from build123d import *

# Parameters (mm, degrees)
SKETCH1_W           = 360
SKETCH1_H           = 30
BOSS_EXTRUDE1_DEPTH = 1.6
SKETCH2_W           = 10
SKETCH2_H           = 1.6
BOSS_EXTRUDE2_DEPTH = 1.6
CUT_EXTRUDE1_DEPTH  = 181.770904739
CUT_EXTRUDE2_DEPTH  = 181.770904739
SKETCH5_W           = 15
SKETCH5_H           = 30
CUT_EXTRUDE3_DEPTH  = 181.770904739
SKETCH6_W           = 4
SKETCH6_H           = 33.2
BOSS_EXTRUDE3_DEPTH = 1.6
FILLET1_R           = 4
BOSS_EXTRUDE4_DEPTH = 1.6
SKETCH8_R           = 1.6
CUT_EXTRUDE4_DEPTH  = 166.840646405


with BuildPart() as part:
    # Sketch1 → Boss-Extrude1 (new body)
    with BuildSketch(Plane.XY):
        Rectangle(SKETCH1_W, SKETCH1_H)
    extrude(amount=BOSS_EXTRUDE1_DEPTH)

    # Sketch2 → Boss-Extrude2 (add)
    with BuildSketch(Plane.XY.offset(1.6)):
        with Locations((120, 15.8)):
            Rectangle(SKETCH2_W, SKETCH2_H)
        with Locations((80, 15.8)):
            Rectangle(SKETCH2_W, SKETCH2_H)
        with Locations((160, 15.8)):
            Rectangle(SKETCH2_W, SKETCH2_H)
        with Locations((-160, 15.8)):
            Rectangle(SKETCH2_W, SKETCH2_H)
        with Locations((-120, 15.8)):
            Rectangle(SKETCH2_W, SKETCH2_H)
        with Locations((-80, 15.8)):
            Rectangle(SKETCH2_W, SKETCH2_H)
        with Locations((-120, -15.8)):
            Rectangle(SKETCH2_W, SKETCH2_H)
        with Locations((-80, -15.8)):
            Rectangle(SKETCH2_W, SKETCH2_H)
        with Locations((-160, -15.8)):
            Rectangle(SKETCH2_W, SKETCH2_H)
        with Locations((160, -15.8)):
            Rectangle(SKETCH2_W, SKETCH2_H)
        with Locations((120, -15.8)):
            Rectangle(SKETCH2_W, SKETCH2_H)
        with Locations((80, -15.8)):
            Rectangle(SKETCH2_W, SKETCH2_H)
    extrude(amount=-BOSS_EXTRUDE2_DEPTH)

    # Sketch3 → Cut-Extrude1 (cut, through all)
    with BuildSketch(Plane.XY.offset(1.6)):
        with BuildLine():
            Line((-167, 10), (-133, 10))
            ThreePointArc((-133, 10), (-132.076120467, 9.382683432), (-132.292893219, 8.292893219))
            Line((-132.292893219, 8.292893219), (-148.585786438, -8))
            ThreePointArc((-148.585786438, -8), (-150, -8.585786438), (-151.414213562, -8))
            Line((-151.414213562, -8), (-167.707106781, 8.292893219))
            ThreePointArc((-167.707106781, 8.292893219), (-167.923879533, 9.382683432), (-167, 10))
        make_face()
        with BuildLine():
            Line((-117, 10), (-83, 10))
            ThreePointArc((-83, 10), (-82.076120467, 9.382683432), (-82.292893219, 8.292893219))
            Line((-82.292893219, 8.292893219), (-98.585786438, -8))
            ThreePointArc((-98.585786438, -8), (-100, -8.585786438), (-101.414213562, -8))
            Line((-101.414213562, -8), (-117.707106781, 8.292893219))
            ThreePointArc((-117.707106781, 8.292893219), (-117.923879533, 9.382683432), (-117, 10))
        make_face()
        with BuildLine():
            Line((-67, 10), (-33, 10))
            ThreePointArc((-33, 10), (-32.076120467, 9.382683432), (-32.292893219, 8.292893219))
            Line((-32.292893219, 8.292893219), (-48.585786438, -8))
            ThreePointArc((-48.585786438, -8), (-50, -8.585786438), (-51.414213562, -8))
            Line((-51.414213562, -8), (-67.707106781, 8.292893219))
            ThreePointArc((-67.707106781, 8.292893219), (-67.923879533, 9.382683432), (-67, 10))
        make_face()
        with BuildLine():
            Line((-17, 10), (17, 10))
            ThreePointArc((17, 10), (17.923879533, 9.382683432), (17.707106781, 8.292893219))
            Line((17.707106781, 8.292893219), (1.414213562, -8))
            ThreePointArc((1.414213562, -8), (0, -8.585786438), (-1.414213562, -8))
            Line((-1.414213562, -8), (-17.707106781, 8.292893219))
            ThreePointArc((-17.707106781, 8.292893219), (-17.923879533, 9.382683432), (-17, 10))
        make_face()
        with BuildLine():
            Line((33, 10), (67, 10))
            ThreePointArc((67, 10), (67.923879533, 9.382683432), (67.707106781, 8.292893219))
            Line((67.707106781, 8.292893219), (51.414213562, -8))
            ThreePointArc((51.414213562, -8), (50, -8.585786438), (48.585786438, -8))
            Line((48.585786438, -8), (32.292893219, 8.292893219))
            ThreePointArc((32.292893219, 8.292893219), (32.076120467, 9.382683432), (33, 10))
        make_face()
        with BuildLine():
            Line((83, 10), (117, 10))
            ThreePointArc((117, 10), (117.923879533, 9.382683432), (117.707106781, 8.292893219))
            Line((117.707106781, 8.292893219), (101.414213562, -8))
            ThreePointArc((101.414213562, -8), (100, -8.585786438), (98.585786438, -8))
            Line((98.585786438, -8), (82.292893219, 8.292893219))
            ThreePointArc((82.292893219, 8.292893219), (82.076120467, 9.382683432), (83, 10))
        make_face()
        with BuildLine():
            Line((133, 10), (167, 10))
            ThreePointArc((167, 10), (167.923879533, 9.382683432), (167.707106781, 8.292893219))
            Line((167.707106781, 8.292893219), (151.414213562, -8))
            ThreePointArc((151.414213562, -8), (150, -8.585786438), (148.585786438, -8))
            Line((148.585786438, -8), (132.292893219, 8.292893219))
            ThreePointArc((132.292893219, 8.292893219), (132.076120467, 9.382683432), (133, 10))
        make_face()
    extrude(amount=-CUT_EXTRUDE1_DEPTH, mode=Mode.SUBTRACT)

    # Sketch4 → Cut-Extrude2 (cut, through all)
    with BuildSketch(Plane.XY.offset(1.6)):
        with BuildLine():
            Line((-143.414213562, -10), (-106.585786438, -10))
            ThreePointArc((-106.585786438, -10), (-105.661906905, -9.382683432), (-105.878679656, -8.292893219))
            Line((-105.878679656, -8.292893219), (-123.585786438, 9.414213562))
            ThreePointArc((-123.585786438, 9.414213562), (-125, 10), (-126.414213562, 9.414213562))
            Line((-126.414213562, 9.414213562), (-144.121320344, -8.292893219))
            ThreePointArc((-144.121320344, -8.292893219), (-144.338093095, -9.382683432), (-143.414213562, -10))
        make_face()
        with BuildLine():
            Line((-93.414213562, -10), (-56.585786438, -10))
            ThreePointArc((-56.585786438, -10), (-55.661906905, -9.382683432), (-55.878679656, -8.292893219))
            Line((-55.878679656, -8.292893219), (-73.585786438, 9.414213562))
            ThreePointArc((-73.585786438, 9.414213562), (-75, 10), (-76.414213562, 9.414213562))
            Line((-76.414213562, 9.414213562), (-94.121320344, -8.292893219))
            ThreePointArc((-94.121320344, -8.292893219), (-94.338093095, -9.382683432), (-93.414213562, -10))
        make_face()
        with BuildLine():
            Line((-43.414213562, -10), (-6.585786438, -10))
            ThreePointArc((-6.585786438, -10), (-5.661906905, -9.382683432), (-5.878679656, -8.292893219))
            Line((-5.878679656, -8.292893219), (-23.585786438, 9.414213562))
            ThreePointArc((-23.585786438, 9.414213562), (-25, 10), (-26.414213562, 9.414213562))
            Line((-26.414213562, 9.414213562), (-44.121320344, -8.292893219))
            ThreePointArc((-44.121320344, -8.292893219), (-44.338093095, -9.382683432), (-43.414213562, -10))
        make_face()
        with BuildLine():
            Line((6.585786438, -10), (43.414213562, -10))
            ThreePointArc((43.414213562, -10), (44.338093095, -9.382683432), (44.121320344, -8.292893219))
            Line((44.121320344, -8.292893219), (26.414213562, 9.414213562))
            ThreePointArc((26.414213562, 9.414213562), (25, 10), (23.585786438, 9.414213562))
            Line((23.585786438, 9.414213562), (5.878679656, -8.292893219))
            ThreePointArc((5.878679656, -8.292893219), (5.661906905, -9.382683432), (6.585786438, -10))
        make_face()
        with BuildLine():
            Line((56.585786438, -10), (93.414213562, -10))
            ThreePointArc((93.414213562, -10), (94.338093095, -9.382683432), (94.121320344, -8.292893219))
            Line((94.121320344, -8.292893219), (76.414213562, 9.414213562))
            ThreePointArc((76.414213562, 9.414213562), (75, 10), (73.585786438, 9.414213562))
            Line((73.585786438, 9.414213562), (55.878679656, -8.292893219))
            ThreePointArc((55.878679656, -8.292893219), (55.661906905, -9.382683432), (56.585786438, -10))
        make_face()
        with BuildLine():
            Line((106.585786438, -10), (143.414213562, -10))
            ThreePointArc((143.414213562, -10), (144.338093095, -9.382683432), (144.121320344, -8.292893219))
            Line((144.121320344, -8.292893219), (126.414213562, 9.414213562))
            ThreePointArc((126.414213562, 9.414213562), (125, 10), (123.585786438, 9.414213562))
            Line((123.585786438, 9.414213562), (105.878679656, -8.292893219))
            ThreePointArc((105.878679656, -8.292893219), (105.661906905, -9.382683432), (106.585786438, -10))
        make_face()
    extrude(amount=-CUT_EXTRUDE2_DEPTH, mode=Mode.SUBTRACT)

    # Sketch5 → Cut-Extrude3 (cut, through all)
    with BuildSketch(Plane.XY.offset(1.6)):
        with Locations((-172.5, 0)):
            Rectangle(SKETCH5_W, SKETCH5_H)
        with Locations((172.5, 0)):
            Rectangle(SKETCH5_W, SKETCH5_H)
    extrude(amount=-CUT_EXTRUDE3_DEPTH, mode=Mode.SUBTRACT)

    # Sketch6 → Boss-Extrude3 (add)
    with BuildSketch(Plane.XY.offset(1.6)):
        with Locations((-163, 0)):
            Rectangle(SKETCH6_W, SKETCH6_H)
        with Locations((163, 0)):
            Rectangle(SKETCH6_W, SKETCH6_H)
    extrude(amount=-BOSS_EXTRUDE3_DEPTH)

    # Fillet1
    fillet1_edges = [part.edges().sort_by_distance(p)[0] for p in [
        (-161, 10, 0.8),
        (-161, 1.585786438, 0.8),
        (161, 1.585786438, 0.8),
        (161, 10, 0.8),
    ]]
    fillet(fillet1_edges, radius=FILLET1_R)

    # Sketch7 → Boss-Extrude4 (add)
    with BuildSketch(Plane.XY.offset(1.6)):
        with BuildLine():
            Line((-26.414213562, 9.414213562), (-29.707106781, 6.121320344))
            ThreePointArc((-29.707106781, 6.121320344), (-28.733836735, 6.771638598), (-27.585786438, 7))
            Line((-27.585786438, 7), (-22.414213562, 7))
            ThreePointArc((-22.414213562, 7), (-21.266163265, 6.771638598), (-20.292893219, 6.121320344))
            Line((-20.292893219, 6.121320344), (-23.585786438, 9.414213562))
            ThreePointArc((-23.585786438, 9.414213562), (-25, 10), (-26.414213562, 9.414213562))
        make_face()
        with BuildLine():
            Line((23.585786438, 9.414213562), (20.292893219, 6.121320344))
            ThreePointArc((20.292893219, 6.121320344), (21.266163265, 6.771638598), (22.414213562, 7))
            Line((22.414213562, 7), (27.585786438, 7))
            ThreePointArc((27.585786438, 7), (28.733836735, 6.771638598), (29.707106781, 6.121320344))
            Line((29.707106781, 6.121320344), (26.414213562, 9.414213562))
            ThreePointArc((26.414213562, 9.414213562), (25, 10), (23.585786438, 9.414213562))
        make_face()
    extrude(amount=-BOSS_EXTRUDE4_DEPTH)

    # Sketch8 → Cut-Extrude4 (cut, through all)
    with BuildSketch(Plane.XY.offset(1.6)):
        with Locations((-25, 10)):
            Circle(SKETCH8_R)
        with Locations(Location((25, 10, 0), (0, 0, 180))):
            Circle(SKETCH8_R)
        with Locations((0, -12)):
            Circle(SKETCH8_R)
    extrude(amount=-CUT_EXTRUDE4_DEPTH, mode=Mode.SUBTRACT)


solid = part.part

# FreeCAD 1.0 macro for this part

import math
import FreeCAD as App
import Part
import Sketcher
Q = App.Units.Quantity


def edges_at(feature, points):
    """Names of the edges that pass closest to the given points."""
    edges = feature.Shape.Edges
    near = lambda p: min(range(len(edges)), key=lambda i: edges[i].distToShape(Part.Vertex(*p))[0])
    return sorted({f"Edge{near(p) + 1}" for p in points})

doc = App.newDocument("Part")
body = doc.addObject("PartDesign::Body", "Body")

# Sketch on XY plane
sketch1 = doc.addObject("Sketcher::SketchObject", "Sketch")
body.addObject(sketch1)
sketch1.AttachmentSupport = (doc.XY_Plane, [""])
sketch1.MapMode = "FlatFace"
sketch1.addGeometry([
    Part.LineSegment(App.Vector(-180, 15, 0), App.Vector(-180, -15, 0)),
    Part.LineSegment(App.Vector(-180, -15, 0), App.Vector(180, -15, 0)),
    Part.LineSegment(App.Vector(180, -15, 0), App.Vector(180, 15, 0)),
    Part.LineSegment(App.Vector(180, 15, 0), App.Vector(-180, 15, 0)),
], False)
sketch1.addConstraint([
    Sketcher.Constraint("Coincident", 0, 2, 1, 1),
    Sketcher.Constraint("Coincident", 1, 2, 2, 1),
    Sketcher.Constraint("Coincident", 2, 2, 3, 1),
    Sketcher.Constraint("Coincident", 3, 2, 0, 1),
    Sketcher.Constraint("Vertical", 0),
    Sketcher.Constraint("Horizontal", 1),
    Sketcher.Constraint("Vertical", 2),
    Sketcher.Constraint("Horizontal", 3),
    Sketcher.Constraint("Symmetric", 0, 2, 2, 2, -1, 1),
    Sketcher.Constraint("DistanceX", 1, 1, 1, 2, Q("360 mm")),
    Sketcher.Constraint("DistanceY", 0, 2, 0, 1, Q("30 mm")),
])
pad1 = doc.addObject("PartDesign::Pad", "Pad")
body.addObject(pad1)
pad1.Profile = sketch1
pad1.Length = 1.6

# Sketch on XY plane
sketch2 = doc.addObject("Sketcher::SketchObject", "Sketch001")
body.addObject(sketch2)
sketch2.AttachmentSupport = (doc.XY_Plane, [""])
sketch2.MapMode = "FlatFace"
sketch2.AttachmentOffset = App.Placement(App.Vector(0, 0, 1.6), App.Rotation())
sketch2.addGeometry([
    Part.LineSegment(App.Vector(115, 16.6, 0), App.Vector(115, 15, 0)),  # 0
    Part.LineSegment(App.Vector(115, 15, 0), App.Vector(125, 15, 0)),  # 1
    Part.LineSegment(App.Vector(125, 15, 0), App.Vector(125, 16.6, 0)),  # 2
    Part.LineSegment(App.Vector(125, 16.6, 0), App.Vector(115, 16.6, 0)),  # 3
    Part.LineSegment(App.Vector(75, 16.6, 0), App.Vector(75, 15, 0)),  # 4
    Part.LineSegment(App.Vector(75, 15, 0), App.Vector(85, 15, 0)),  # 5
    Part.LineSegment(App.Vector(85, 15, 0), App.Vector(85, 16.6, 0)),  # 6
    Part.LineSegment(App.Vector(85, 16.6, 0), App.Vector(75, 16.6, 0)),  # 7
    Part.LineSegment(App.Vector(155, 16.6, 0), App.Vector(155, 15, 0)),  # 8
    Part.LineSegment(App.Vector(155, 15, 0), App.Vector(165, 15, 0)),  # 9
    Part.LineSegment(App.Vector(165, 15, 0), App.Vector(165, 16.6, 0)),  # 10
    Part.LineSegment(App.Vector(165, 16.6, 0), App.Vector(155, 16.6, 0)),  # 11
    Part.LineSegment(App.Vector(-165, 16.6, 0), App.Vector(-165, 15, 0)),  # 12
    Part.LineSegment(App.Vector(-165, 15, 0), App.Vector(-155, 15, 0)),  # 13
    Part.LineSegment(App.Vector(-155, 15, 0), App.Vector(-155, 16.6, 0)),  # 14
    Part.LineSegment(App.Vector(-155, 16.6, 0), App.Vector(-165, 16.6, 0)),  # 15
    Part.LineSegment(App.Vector(-125, 16.6, 0), App.Vector(-125, 15, 0)),  # 16
    Part.LineSegment(App.Vector(-125, 15, 0), App.Vector(-115, 15, 0)),  # 17
    Part.LineSegment(App.Vector(-115, 15, 0), App.Vector(-115, 16.6, 0)),  # 18
    Part.LineSegment(App.Vector(-115, 16.6, 0), App.Vector(-125, 16.6, 0)),  # 19
    Part.LineSegment(App.Vector(-85, 16.6, 0), App.Vector(-85, 15, 0)),  # 20
    Part.LineSegment(App.Vector(-85, 15, 0), App.Vector(-75, 15, 0)),  # 21
    Part.LineSegment(App.Vector(-75, 15, 0), App.Vector(-75, 16.6, 0)),  # 22
    Part.LineSegment(App.Vector(-75, 16.6, 0), App.Vector(-85, 16.6, 0)),  # 23
    Part.LineSegment(App.Vector(-125, -15, 0), App.Vector(-125, -16.6, 0)),  # 24
    Part.LineSegment(App.Vector(-125, -16.6, 0), App.Vector(-115, -16.6, 0)),  # 25
    Part.LineSegment(App.Vector(-115, -16.6, 0), App.Vector(-115, -15, 0)),  # 26
    Part.LineSegment(App.Vector(-115, -15, 0), App.Vector(-125, -15, 0)),  # 27
    Part.LineSegment(App.Vector(-85, -15, 0), App.Vector(-85, -16.6, 0)),  # 28
    Part.LineSegment(App.Vector(-85, -16.6, 0), App.Vector(-75, -16.6, 0)),  # 29
    Part.LineSegment(App.Vector(-75, -16.6, 0), App.Vector(-75, -15, 0)),  # 30
    Part.LineSegment(App.Vector(-75, -15, 0), App.Vector(-85, -15, 0)),  # 31
    Part.LineSegment(App.Vector(-165, -15, 0), App.Vector(-165, -16.6, 0)),  # 32
    Part.LineSegment(App.Vector(-165, -16.6, 0), App.Vector(-155, -16.6, 0)),  # 33
    Part.LineSegment(App.Vector(-155, -16.6, 0), App.Vector(-155, -15, 0)),  # 34
    Part.LineSegment(App.Vector(-155, -15, 0), App.Vector(-165, -15, 0)),  # 35
    Part.LineSegment(App.Vector(155, -15, 0), App.Vector(155, -16.6, 0)),  # 36
    Part.LineSegment(App.Vector(155, -16.6, 0), App.Vector(165, -16.6, 0)),  # 37
    Part.LineSegment(App.Vector(165, -16.6, 0), App.Vector(165, -15, 0)),  # 38
    Part.LineSegment(App.Vector(165, -15, 0), App.Vector(155, -15, 0)),  # 39
    Part.LineSegment(App.Vector(115, -15, 0), App.Vector(115, -16.6, 0)),  # 40
    Part.LineSegment(App.Vector(115, -16.6, 0), App.Vector(125, -16.6, 0)),  # 41
    Part.LineSegment(App.Vector(125, -16.6, 0), App.Vector(125, -15, 0)),  # 42
    Part.LineSegment(App.Vector(125, -15, 0), App.Vector(115, -15, 0)),  # 43
    Part.LineSegment(App.Vector(75, -15, 0), App.Vector(75, -16.6, 0)),  # 44
    Part.LineSegment(App.Vector(75, -16.6, 0), App.Vector(85, -16.6, 0)),  # 45
    Part.LineSegment(App.Vector(85, -16.6, 0), App.Vector(85, -15, 0)),  # 46
    Part.LineSegment(App.Vector(85, -15, 0), App.Vector(75, -15, 0)),  # 47
], False)
sketch2.addConstraint([
    Sketcher.Constraint("Coincident", 0, 2, 1, 1),
    Sketcher.Constraint("Coincident", 1, 2, 2, 1),
    Sketcher.Constraint("Coincident", 2, 2, 3, 1),
    Sketcher.Constraint("Coincident", 3, 2, 0, 1),
    Sketcher.Constraint("Coincident", 4, 2, 5, 1),
    Sketcher.Constraint("Coincident", 5, 2, 6, 1),
    Sketcher.Constraint("Coincident", 6, 2, 7, 1),
    Sketcher.Constraint("Coincident", 7, 2, 4, 1),
    Sketcher.Constraint("Coincident", 8, 2, 9, 1),
    Sketcher.Constraint("Coincident", 9, 2, 10, 1),
    Sketcher.Constraint("Coincident", 10, 2, 11, 1),
    Sketcher.Constraint("Coincident", 11, 2, 8, 1),
    Sketcher.Constraint("Coincident", 12, 2, 13, 1),
    Sketcher.Constraint("Coincident", 13, 2, 14, 1),
    Sketcher.Constraint("Coincident", 14, 2, 15, 1),
    Sketcher.Constraint("Coincident", 15, 2, 12, 1),
    Sketcher.Constraint("Coincident", 16, 2, 17, 1),
    Sketcher.Constraint("Coincident", 17, 2, 18, 1),
    Sketcher.Constraint("Coincident", 18, 2, 19, 1),
    Sketcher.Constraint("Coincident", 19, 2, 16, 1),
    Sketcher.Constraint("Coincident", 20, 2, 21, 1),
    Sketcher.Constraint("Coincident", 21, 2, 22, 1),
    Sketcher.Constraint("Coincident", 22, 2, 23, 1),
    Sketcher.Constraint("Coincident", 23, 2, 20, 1),
    Sketcher.Constraint("Coincident", 24, 2, 25, 1),
    Sketcher.Constraint("Coincident", 25, 2, 26, 1),
    Sketcher.Constraint("Coincident", 26, 2, 27, 1),
    Sketcher.Constraint("Coincident", 27, 2, 24, 1),
    Sketcher.Constraint("Coincident", 28, 2, 29, 1),
    Sketcher.Constraint("Coincident", 29, 2, 30, 1),
    Sketcher.Constraint("Coincident", 30, 2, 31, 1),
    Sketcher.Constraint("Coincident", 31, 2, 28, 1),
    Sketcher.Constraint("Coincident", 32, 2, 33, 1),
    Sketcher.Constraint("Coincident", 33, 2, 34, 1),
    Sketcher.Constraint("Coincident", 34, 2, 35, 1),
    Sketcher.Constraint("Coincident", 35, 2, 32, 1),
    Sketcher.Constraint("Coincident", 36, 2, 37, 1),
    Sketcher.Constraint("Coincident", 37, 2, 38, 1),
    Sketcher.Constraint("Coincident", 38, 2, 39, 1),
    Sketcher.Constraint("Coincident", 39, 2, 36, 1),
    Sketcher.Constraint("Coincident", 40, 2, 41, 1),
    Sketcher.Constraint("Coincident", 41, 2, 42, 1),
    Sketcher.Constraint("Coincident", 42, 2, 43, 1),
    Sketcher.Constraint("Coincident", 43, 2, 40, 1),
    Sketcher.Constraint("Coincident", 44, 2, 45, 1),
    Sketcher.Constraint("Coincident", 45, 2, 46, 1),
    Sketcher.Constraint("Coincident", 46, 2, 47, 1),
    Sketcher.Constraint("Coincident", 47, 2, 44, 1),
    Sketcher.Constraint("Vertical", 0),
    Sketcher.Constraint("Horizontal", 1),
    Sketcher.Constraint("Vertical", 2),
    Sketcher.Constraint("Horizontal", 3),
    Sketcher.Constraint("Vertical", 4),
    Sketcher.Constraint("Horizontal", 5),
    Sketcher.Constraint("Vertical", 6),
    Sketcher.Constraint("Horizontal", 7),
    Sketcher.Constraint("Vertical", 8),
    Sketcher.Constraint("Horizontal", 9),
    Sketcher.Constraint("Vertical", 10),
    Sketcher.Constraint("Horizontal", 11),
    Sketcher.Constraint("Vertical", 12),
    Sketcher.Constraint("Horizontal", 13),
    Sketcher.Constraint("Vertical", 14),
    Sketcher.Constraint("Horizontal", 15),
    Sketcher.Constraint("Vertical", 16),
    Sketcher.Constraint("Horizontal", 17),
    Sketcher.Constraint("Vertical", 18),
    Sketcher.Constraint("Horizontal", 19),
    Sketcher.Constraint("Vertical", 20),
    Sketcher.Constraint("Horizontal", 21),
    Sketcher.Constraint("Vertical", 22),
    Sketcher.Constraint("Horizontal", 23),
    Sketcher.Constraint("Vertical", 24),
    Sketcher.Constraint("Horizontal", 25),
    Sketcher.Constraint("Vertical", 26),
    Sketcher.Constraint("Horizontal", 27),
    Sketcher.Constraint("Vertical", 28),
    Sketcher.Constraint("Horizontal", 29),
    Sketcher.Constraint("Vertical", 30),
    Sketcher.Constraint("Horizontal", 31),
    Sketcher.Constraint("Vertical", 32),
    Sketcher.Constraint("Horizontal", 33),
    Sketcher.Constraint("Vertical", 34),
    Sketcher.Constraint("Horizontal", 35),
    Sketcher.Constraint("Vertical", 36),
    Sketcher.Constraint("Horizontal", 37),
    Sketcher.Constraint("Vertical", 38),
    Sketcher.Constraint("Horizontal", 39),
    Sketcher.Constraint("Vertical", 40),
    Sketcher.Constraint("Horizontal", 41),
    Sketcher.Constraint("Vertical", 42),
    Sketcher.Constraint("Horizontal", 43),
    Sketcher.Constraint("Vertical", 44),
    Sketcher.Constraint("Horizontal", 45),
    Sketcher.Constraint("Vertical", 46),
    Sketcher.Constraint("Horizontal", 47),
    Sketcher.Constraint("Symmetric", 2, 2, 24, 2, -1, 1),
    Sketcher.Constraint("Symmetric", 0, 2, 26, 2, -1, 1),
    Sketcher.Constraint("Symmetric", 6, 2, 28, 2, -1, 1),
    Sketcher.Constraint("Symmetric", 4, 2, 30, 2, -1, 1),
    Sketcher.Constraint("Symmetric", 10, 2, 32, 2, -1, 1),
    Sketcher.Constraint("Symmetric", 8, 2, 34, 2, -1, 1),
    Sketcher.Constraint("Symmetric", 14, 2, 36, 2, -1, 1),
    Sketcher.Constraint("Symmetric", 12, 2, 38, 2, -1, 1),
    Sketcher.Constraint("Symmetric", 18, 2, 40, 2, -1, 1),
    Sketcher.Constraint("Symmetric", 16, 2, 42, 2, -1, 1),
    Sketcher.Constraint("Symmetric", 22, 2, 44, 2, -1, 1),
    Sketcher.Constraint("Symmetric", 20, 2, 46, 2, -1, 1),
    Sketcher.Constraint("Symmetric", 9, 2, 12, 2, -2),
    Sketcher.Constraint("Symmetric", 11, 2, 14, 2, -2),
    Sketcher.Constraint("Symmetric", 1, 2, 16, 2, -2),
    Sketcher.Constraint("Symmetric", 3, 2, 18, 2, -2),
    Sketcher.Constraint("Symmetric", 5, 2, 20, 2, -2),
    Sketcher.Constraint("Symmetric", 7, 2, 22, 2, -2),
    Sketcher.Constraint("Horizontal", 1, 2, 4, 2),
    Sketcher.Constraint("Horizontal", 3, 2, 6, 2),
    Sketcher.Constraint("Horizontal", 5, 2, 8, 2),
    Sketcher.Constraint("Horizontal", 7, 2, 10, 2),
    Sketcher.Constraint("Equal", 3, 5),
    Sketcher.Constraint("Equal", 7, 9),
    Sketcher.Constraint("DistanceX", 1, 1, 1, 2, Q("10 mm")),
    Sketcher.Constraint("DistanceY", 0, 2, 0, 1, Q("1.6 mm")),
    Sketcher.Constraint("DistanceX", -1, 1, 0, 2, Q("115 mm")),
    Sketcher.Constraint("DistanceY", -1, 1, 0, 2, Q("15 mm")),
    Sketcher.Constraint("DistanceX", -1, 1, 4, 2, Q("75 mm")),
    Sketcher.Constraint("DistanceX", -1, 1, 8, 2, Q("155 mm")),
])
pad2 = doc.addObject("PartDesign::Pad", "Pad001")
body.addObject(pad2)
pad2.Profile = sketch2
pad2.Length = 1.6
pad2.Reversed = True

# Sketch on XY plane
sketch3 = doc.addObject("Sketcher::SketchObject", "Sketch002")
body.addObject(sketch3)
sketch3.AttachmentSupport = (doc.XY_Plane, [""])
sketch3.MapMode = "FlatFace"
sketch3.AttachmentOffset = App.Placement(App.Vector(0, 0, 1.6), App.Rotation())
sketch3.addGeometry([
    Part.LineSegment(App.Vector(-133, 10, 0), App.Vector(-167, 10, 0)),  # 0
    Part.ArcOfCircle(Part.Circle(App.Vector(-167, 9, 0), App.Vector(0, 0, 1), 1), math.radians(90), math.radians(225)),  # 1
    Part.LineSegment(App.Vector(-167.707107, 8.292893, 0), App.Vector(-151.414214, -8, 0)),  # 2
    Part.ArcOfCircle(Part.Circle(App.Vector(-150, -6.585786, 0), App.Vector(0, 0, 1), 2), math.radians(-135), math.radians(-45)),  # 3
    Part.LineSegment(App.Vector(-148.585786, -8, 0), App.Vector(-132.292893, 8.292893, 0)),  # 4
    Part.ArcOfCircle(Part.Circle(App.Vector(-133, 9, 0), App.Vector(0, 0, 1), 1), math.radians(-45), math.radians(90)),  # 5
    Part.LineSegment(App.Vector(-83, 10, 0), App.Vector(-117, 10, 0)),  # 6
    Part.ArcOfCircle(Part.Circle(App.Vector(-117, 9, 0), App.Vector(0, 0, 1), 1), math.radians(90), math.radians(225)),  # 7
    Part.LineSegment(App.Vector(-117.707107, 8.292893, 0), App.Vector(-101.414214, -8, 0)),  # 8
    Part.ArcOfCircle(Part.Circle(App.Vector(-100, -6.585786, 0), App.Vector(0, 0, 1), 2), math.radians(-135), math.radians(-45)),  # 9
    Part.LineSegment(App.Vector(-98.585786, -8, 0), App.Vector(-82.292893, 8.292893, 0)),  # 10
    Part.ArcOfCircle(Part.Circle(App.Vector(-83, 9, 0), App.Vector(0, 0, 1), 1), math.radians(-45), math.radians(90)),  # 11
    Part.LineSegment(App.Vector(-33, 10, 0), App.Vector(-67, 10, 0)),  # 12
    Part.ArcOfCircle(Part.Circle(App.Vector(-67, 9, 0), App.Vector(0, 0, 1), 1), math.radians(90), math.radians(225)),  # 13
    Part.LineSegment(App.Vector(-67.707107, 8.292893, 0), App.Vector(-51.414214, -8, 0)),  # 14
    Part.ArcOfCircle(Part.Circle(App.Vector(-50, -6.585786, 0), App.Vector(0, 0, 1), 2), math.radians(-135), math.radians(-45)),  # 15
    Part.LineSegment(App.Vector(-48.585786, -8, 0), App.Vector(-32.292893, 8.292893, 0)),  # 16
    Part.ArcOfCircle(Part.Circle(App.Vector(-33, 9, 0), App.Vector(0, 0, 1), 1), math.radians(-45), math.radians(90)),  # 17
    Part.LineSegment(App.Vector(17, 10, 0), App.Vector(-17, 10, 0)),  # 18
    Part.ArcOfCircle(Part.Circle(App.Vector(-17, 9, 0), App.Vector(0, 0, 1), 1), math.radians(90), math.radians(225)),  # 19
    Part.LineSegment(App.Vector(-17.707107, 8.292893, 0), App.Vector(-1.414214, -8, 0)),  # 20
    Part.ArcOfCircle(Part.Circle(App.Vector(0, -6.585786, 0), App.Vector(0, 0, 1), 2), math.radians(-135), math.radians(-45)),  # 21
    Part.LineSegment(App.Vector(1.414214, -8, 0), App.Vector(17.707107, 8.292893, 0)),  # 22
    Part.ArcOfCircle(Part.Circle(App.Vector(17, 9, 0), App.Vector(0, 0, 1), 1), math.radians(-45), math.radians(90)),  # 23
    Part.LineSegment(App.Vector(67, 10, 0), App.Vector(33, 10, 0)),  # 24
    Part.ArcOfCircle(Part.Circle(App.Vector(33, 9, 0), App.Vector(0, 0, 1), 1), math.radians(90), math.radians(225)),  # 25
    Part.LineSegment(App.Vector(32.292893, 8.292893, 0), App.Vector(48.585786, -8, 0)),  # 26
    Part.ArcOfCircle(Part.Circle(App.Vector(50, -6.585786, 0), App.Vector(0, 0, 1), 2), math.radians(-135), math.radians(-45)),  # 27
    Part.LineSegment(App.Vector(51.414214, -8, 0), App.Vector(67.707107, 8.292893, 0)),  # 28
    Part.ArcOfCircle(Part.Circle(App.Vector(67, 9, 0), App.Vector(0, 0, 1), 1), math.radians(-45), math.radians(90)),  # 29
    Part.LineSegment(App.Vector(117, 10, 0), App.Vector(83, 10, 0)),  # 30
    Part.ArcOfCircle(Part.Circle(App.Vector(83, 9, 0), App.Vector(0, 0, 1), 1), math.radians(90), math.radians(225)),  # 31
    Part.LineSegment(App.Vector(82.292893, 8.292893, 0), App.Vector(98.585786, -8, 0)),  # 32
    Part.ArcOfCircle(Part.Circle(App.Vector(100, -6.585786, 0), App.Vector(0, 0, 1), 2), math.radians(-135), math.radians(-45)),  # 33
    Part.LineSegment(App.Vector(101.414214, -8, 0), App.Vector(117.707107, 8.292893, 0)),  # 34
    Part.ArcOfCircle(Part.Circle(App.Vector(117, 9, 0), App.Vector(0, 0, 1), 1), math.radians(-45), math.radians(90)),  # 35
    Part.LineSegment(App.Vector(167, 10, 0), App.Vector(133, 10, 0)),  # 36
    Part.ArcOfCircle(Part.Circle(App.Vector(133, 9, 0), App.Vector(0, 0, 1), 1), math.radians(90), math.radians(225)),  # 37
    Part.LineSegment(App.Vector(132.292893, 8.292893, 0), App.Vector(148.585786, -8, 0)),  # 38
    Part.ArcOfCircle(Part.Circle(App.Vector(150, -6.585786, 0), App.Vector(0, 0, 1), 2), math.radians(-135), math.radians(-45)),  # 39
    Part.LineSegment(App.Vector(151.414214, -8, 0), App.Vector(167.707107, 8.292893, 0)),  # 40
    Part.ArcOfCircle(Part.Circle(App.Vector(167, 9, 0), App.Vector(0, 0, 1), 1), math.radians(-45), math.radians(90)),  # 41
], False)
sketch3.addConstraint([
    Sketcher.Constraint("Tangent", 0, 2, 1, 1),
    Sketcher.Constraint("Tangent", 1, 2, 2, 1),
    Sketcher.Constraint("Tangent", 2, 2, 3, 1),
    Sketcher.Constraint("Tangent", 3, 2, 4, 1),
    Sketcher.Constraint("Tangent", 4, 2, 5, 1),
    Sketcher.Constraint("Tangent", 5, 2, 0, 1),
    Sketcher.Constraint("Tangent", 6, 2, 7, 1),
    Sketcher.Constraint("Tangent", 7, 2, 8, 1),
    Sketcher.Constraint("Tangent", 8, 2, 9, 1),
    Sketcher.Constraint("Tangent", 9, 2, 10, 1),
    Sketcher.Constraint("Tangent", 10, 2, 11, 1),
    Sketcher.Constraint("Tangent", 11, 2, 6, 1),
    Sketcher.Constraint("Tangent", 12, 2, 13, 1),
    Sketcher.Constraint("Tangent", 13, 2, 14, 1),
    Sketcher.Constraint("Tangent", 14, 2, 15, 1),
    Sketcher.Constraint("Tangent", 15, 2, 16, 1),
    Sketcher.Constraint("Tangent", 16, 2, 17, 1),
    Sketcher.Constraint("Tangent", 17, 2, 12, 1),
    Sketcher.Constraint("Tangent", 18, 2, 19, 1),
    Sketcher.Constraint("Tangent", 19, 2, 20, 1),
    Sketcher.Constraint("Tangent", 20, 2, 21, 1),
    Sketcher.Constraint("Tangent", 21, 2, 22, 1),
    Sketcher.Constraint("Tangent", 22, 2, 23, 1),
    Sketcher.Constraint("Tangent", 23, 2, 18, 1),
    Sketcher.Constraint("Tangent", 24, 2, 25, 1),
    Sketcher.Constraint("Tangent", 25, 2, 26, 1),
    Sketcher.Constraint("Tangent", 26, 2, 27, 1),
    Sketcher.Constraint("Tangent", 27, 2, 28, 1),
    Sketcher.Constraint("Tangent", 28, 2, 29, 1),
    Sketcher.Constraint("Tangent", 29, 2, 24, 1),
    Sketcher.Constraint("Tangent", 30, 2, 31, 1),
    Sketcher.Constraint("Tangent", 31, 2, 32, 1),
    Sketcher.Constraint("Tangent", 32, 2, 33, 1),
    Sketcher.Constraint("Tangent", 33, 2, 34, 1),
    Sketcher.Constraint("Tangent", 34, 2, 35, 1),
    Sketcher.Constraint("Tangent", 35, 2, 30, 1),
    Sketcher.Constraint("Tangent", 36, 2, 37, 1),
    Sketcher.Constraint("Tangent", 37, 2, 38, 1),
    Sketcher.Constraint("Tangent", 38, 2, 39, 1),
    Sketcher.Constraint("Tangent", 39, 2, 40, 1),
    Sketcher.Constraint("Tangent", 40, 2, 41, 1),
    Sketcher.Constraint("Tangent", 41, 2, 36, 1),
    Sketcher.Constraint("Horizontal", 0),
    Sketcher.Constraint("Horizontal", 6),
    Sketcher.Constraint("Horizontal", 12),
    Sketcher.Constraint("Horizontal", 18),
    Sketcher.Constraint("Horizontal", 24),
    Sketcher.Constraint("Horizontal", 30),
    Sketcher.Constraint("Horizontal", 36),
    Sketcher.Constraint("Equal", 1, 5),
    Sketcher.Constraint("Equal", 5, 7),
    Sketcher.Constraint("Equal", 3, 9),
    Sketcher.Constraint("Equal", 7, 11),
    Sketcher.Constraint("Equal", 11, 13),
    Sketcher.Constraint("Equal", 9, 15),
    Sketcher.Constraint("Equal", 13, 17),
    Sketcher.Constraint("Equal", 17, 19),
    Sketcher.Constraint("Equal", 15, 21),
    Sketcher.Constraint("Equal", 19, 23),
    Sketcher.Constraint("Equal", 23, 25),
    Sketcher.Constraint("Equal", 21, 27),
    Sketcher.Constraint("Equal", 25, 29),
    Sketcher.Constraint("Equal", 29, 31),
    Sketcher.Constraint("Equal", 27, 33),
    Sketcher.Constraint("Equal", 31, 35),
    Sketcher.Constraint("Equal", 35, 37),
    Sketcher.Constraint("Equal", 33, 39),
    Sketcher.Constraint("Equal", 37, 41),
    Sketcher.Constraint("Symmetric", 17, 3, 25, 3, -2),
    Sketcher.Constraint("Symmetric", 15, 3, 27, 3, -2),
    Sketcher.Constraint("Symmetric", 11, 3, 31, 3, -2),
    Sketcher.Constraint("Symmetric", 9, 3, 33, 3, -2),
    Sketcher.Constraint("Symmetric", 5, 3, 37, 3, -2),
    Sketcher.Constraint("Symmetric", 3, 3, 39, 3, -2),
    Sketcher.Constraint("Symmetric", 20, 2, 21, 2, -2),
    Sketcher.Constraint("Perpendicular", 2, 4),
    Sketcher.Constraint("Perpendicular", 4, 8),
    Sketcher.Constraint("Perpendicular", 8, 10),
    Sketcher.Constraint("Perpendicular", 10, 14),
    Sketcher.Constraint("Perpendicular", 14, 16),
    Sketcher.Constraint("Perpendicular", 16, 20),
    Sketcher.Constraint("Perpendicular", 20, 22),
    Sketcher.Constraint("Perpendicular", 26, 28),
    Sketcher.Constraint("Perpendicular", 32, 34),
    Sketcher.Constraint("Perpendicular", 38, 40),
    Sketcher.Constraint("Horizontal", 5, 3, 7, 3),
    Sketcher.Constraint("Horizontal", 3, 3, 9, 3),
    Sketcher.Constraint("Horizontal", 11, 3, 13, 3),
    Sketcher.Constraint("Horizontal", 9, 3, 15, 3),
    Sketcher.Constraint("Horizontal", 17, 3, 19, 3),
    Sketcher.Constraint("Horizontal", 15, 3, 21, 3),
    Sketcher.Constraint("Radius", 1, Q("1 mm")),
    Sketcher.Constraint("Radius", 3, Q("2 mm")),
    Sketcher.Constraint("DistanceX", 0, 2, 0, 1, Q("34 mm")),
    Sketcher.Constraint("DistanceX", 1, 3, -1, 1, Q("167 mm")),
    Sketcher.Constraint("DistanceY", -1, 1, 1, 3, Q("9 mm")),
    Sketcher.Constraint("DistanceX", 7, 3, -1, 1, Q("117 mm")),
    Sketcher.Constraint("DistanceX", 13, 3, -1, 1, Q("67 mm")),
])
pocket1 = doc.addObject("PartDesign::Pocket", "Pocket")
body.addObject(pocket1)
pocket1.Profile = sketch3
pocket1.Type = "ThroughAll"

# Sketch on XY plane
sketch4 = doc.addObject("Sketcher::SketchObject", "Sketch003")
body.addObject(sketch4)
sketch4.AttachmentSupport = (doc.XY_Plane, [""])
sketch4.MapMode = "FlatFace"
sketch4.AttachmentOffset = App.Placement(App.Vector(0, 0, 1.6), App.Rotation())
sketch4.addGeometry([
    Part.LineSegment(App.Vector(-143.414214, -10, 0), App.Vector(-106.585786, -10, 0)),  # 0
    Part.ArcOfCircle(Part.Circle(App.Vector(-106.585786, -9, 0), App.Vector(0, 0, 1), 1), math.radians(-90), math.radians(45)),  # 1
    Part.LineSegment(App.Vector(-105.87868, -8.292893, 0), App.Vector(-123.585786, 9.414214, 0)),  # 2
    Part.ArcOfCircle(Part.Circle(App.Vector(-125, 8, 0), App.Vector(0, 0, 1), 2), math.radians(45), math.radians(135)),  # 3
    Part.LineSegment(App.Vector(-126.414214, 9.414214, 0), App.Vector(-144.12132, -8.292893, 0)),  # 4
    Part.ArcOfCircle(Part.Circle(App.Vector(-143.414214, -9, 0), App.Vector(0, 0, 1), 1), math.radians(135), math.radians(270)),  # 5
    Part.LineSegment(App.Vector(-93.414214, -10, 0), App.Vector(-56.585786, -10, 0)),  # 6
    Part.ArcOfCircle(Part.Circle(App.Vector(-56.585786, -9, 0), App.Vector(0, 0, 1), 1), math.radians(-90), math.radians(45)),  # 7
    Part.LineSegment(App.Vector(-55.87868, -8.292893, 0), App.Vector(-73.585786, 9.414214, 0)),  # 8
    Part.ArcOfCircle(Part.Circle(App.Vector(-75, 8, 0), App.Vector(0, 0, 1), 2), math.radians(45), math.radians(135)),  # 9
    Part.LineSegment(App.Vector(-76.414214, 9.414214, 0), App.Vector(-94.12132, -8.292893, 0)),  # 10
    Part.ArcOfCircle(Part.Circle(App.Vector(-93.414214, -9, 0), App.Vector(0, 0, 1), 1), math.radians(135), math.radians(270)),  # 11
    Part.LineSegment(App.Vector(-43.414214, -10, 0), App.Vector(-6.585786, -10, 0)),  # 12
    Part.ArcOfCircle(Part.Circle(App.Vector(-6.585786, -9, 0), App.Vector(0, 0, 1), 1), math.radians(-90), math.radians(45)),  # 13
    Part.LineSegment(App.Vector(-5.87868, -8.292893, 0), App.Vector(-23.585786, 9.414214, 0)),  # 14
    Part.ArcOfCircle(Part.Circle(App.Vector(-25, 8, 0), App.Vector(0, 0, 1), 2), math.radians(45), math.radians(135)),  # 15
    Part.LineSegment(App.Vector(-26.414214, 9.414214, 0), App.Vector(-44.12132, -8.292893, 0)),  # 16
    Part.ArcOfCircle(Part.Circle(App.Vector(-43.414214, -9, 0), App.Vector(0, 0, 1), 1), math.radians(135), math.radians(270)),  # 17
    Part.LineSegment(App.Vector(6.585786, -10, 0), App.Vector(43.414214, -10, 0)),  # 18
    Part.ArcOfCircle(Part.Circle(App.Vector(43.414214, -9, 0), App.Vector(0, 0, 1), 1), math.radians(-90), math.radians(45)),  # 19
    Part.LineSegment(App.Vector(44.12132, -8.292893, 0), App.Vector(26.414214, 9.414214, 0)),  # 20
    Part.ArcOfCircle(Part.Circle(App.Vector(25, 8, 0), App.Vector(0, 0, 1), 2), math.radians(45), math.radians(135)),  # 21
    Part.LineSegment(App.Vector(23.585786, 9.414214, 0), App.Vector(5.87868, -8.292893, 0)),  # 22
    Part.ArcOfCircle(Part.Circle(App.Vector(6.585786, -9, 0), App.Vector(0, 0, 1), 1), math.radians(135), math.radians(270)),  # 23
    Part.LineSegment(App.Vector(56.585786, -10, 0), App.Vector(93.414214, -10, 0)),  # 24
    Part.ArcOfCircle(Part.Circle(App.Vector(93.414214, -9, 0), App.Vector(0, 0, 1), 1), math.radians(-90), math.radians(45)),  # 25
    Part.LineSegment(App.Vector(94.12132, -8.292893, 0), App.Vector(76.414214, 9.414214, 0)),  # 26
    Part.ArcOfCircle(Part.Circle(App.Vector(75, 8, 0), App.Vector(0, 0, 1), 2), math.radians(45), math.radians(135)),  # 27
    Part.LineSegment(App.Vector(73.585786, 9.414214, 0), App.Vector(55.87868, -8.292893, 0)),  # 28
    Part.ArcOfCircle(Part.Circle(App.Vector(56.585786, -9, 0), App.Vector(0, 0, 1), 1), math.radians(135), math.radians(270)),  # 29
    Part.LineSegment(App.Vector(106.585786, -10, 0), App.Vector(143.414214, -10, 0)),  # 30
    Part.ArcOfCircle(Part.Circle(App.Vector(143.414214, -9, 0), App.Vector(0, 0, 1), 1), math.radians(-90), math.radians(45)),  # 31
    Part.LineSegment(App.Vector(144.12132, -8.292893, 0), App.Vector(126.414214, 9.414214, 0)),  # 32
    Part.ArcOfCircle(Part.Circle(App.Vector(125, 8, 0), App.Vector(0, 0, 1), 2), math.radians(45), math.radians(135)),  # 33
    Part.LineSegment(App.Vector(123.585786, 9.414214, 0), App.Vector(105.87868, -8.292893, 0)),  # 34
    Part.ArcOfCircle(Part.Circle(App.Vector(106.585786, -9, 0), App.Vector(0, 0, 1), 1), math.radians(135), math.radians(270)),  # 35
], False)
sketch4.addConstraint([
    Sketcher.Constraint("Tangent", 0, 2, 1, 1),
    Sketcher.Constraint("Tangent", 1, 2, 2, 1),
    Sketcher.Constraint("Tangent", 2, 2, 3, 1),
    Sketcher.Constraint("Tangent", 3, 2, 4, 1),
    Sketcher.Constraint("Tangent", 4, 2, 5, 1),
    Sketcher.Constraint("Tangent", 5, 2, 0, 1),
    Sketcher.Constraint("Tangent", 6, 2, 7, 1),
    Sketcher.Constraint("Tangent", 7, 2, 8, 1),
    Sketcher.Constraint("Tangent", 8, 2, 9, 1),
    Sketcher.Constraint("Tangent", 9, 2, 10, 1),
    Sketcher.Constraint("Tangent", 10, 2, 11, 1),
    Sketcher.Constraint("Tangent", 11, 2, 6, 1),
    Sketcher.Constraint("Tangent", 12, 2, 13, 1),
    Sketcher.Constraint("Tangent", 13, 2, 14, 1),
    Sketcher.Constraint("Tangent", 14, 2, 15, 1),
    Sketcher.Constraint("Tangent", 15, 2, 16, 1),
    Sketcher.Constraint("Tangent", 16, 2, 17, 1),
    Sketcher.Constraint("Tangent", 17, 2, 12, 1),
    Sketcher.Constraint("Tangent", 18, 2, 19, 1),
    Sketcher.Constraint("Tangent", 19, 2, 20, 1),
    Sketcher.Constraint("Tangent", 20, 2, 21, 1),
    Sketcher.Constraint("Tangent", 21, 2, 22, 1),
    Sketcher.Constraint("Tangent", 22, 2, 23, 1),
    Sketcher.Constraint("Tangent", 23, 2, 18, 1),
    Sketcher.Constraint("Tangent", 24, 2, 25, 1),
    Sketcher.Constraint("Tangent", 25, 2, 26, 1),
    Sketcher.Constraint("Tangent", 26, 2, 27, 1),
    Sketcher.Constraint("Tangent", 27, 2, 28, 1),
    Sketcher.Constraint("Tangent", 28, 2, 29, 1),
    Sketcher.Constraint("Tangent", 29, 2, 24, 1),
    Sketcher.Constraint("Tangent", 30, 2, 31, 1),
    Sketcher.Constraint("Tangent", 31, 2, 32, 1),
    Sketcher.Constraint("Tangent", 32, 2, 33, 1),
    Sketcher.Constraint("Tangent", 33, 2, 34, 1),
    Sketcher.Constraint("Tangent", 34, 2, 35, 1),
    Sketcher.Constraint("Tangent", 35, 2, 30, 1),
    Sketcher.Constraint("Horizontal", 0),
    Sketcher.Constraint("Horizontal", 6),
    Sketcher.Constraint("Horizontal", 12),
    Sketcher.Constraint("Horizontal", 18),
    Sketcher.Constraint("Horizontal", 24),
    Sketcher.Constraint("Horizontal", 30),
    Sketcher.Constraint("Equal", 1, 5),
    Sketcher.Constraint("Equal", 5, 7),
    Sketcher.Constraint("Equal", 3, 9),
    Sketcher.Constraint("Equal", 7, 11),
    Sketcher.Constraint("Equal", 11, 13),
    Sketcher.Constraint("Equal", 9, 15),
    Sketcher.Constraint("Equal", 13, 17),
    Sketcher.Constraint("Equal", 17, 19),
    Sketcher.Constraint("Equal", 15, 21),
    Sketcher.Constraint("Equal", 19, 23),
    Sketcher.Constraint("Equal", 23, 25),
    Sketcher.Constraint("Equal", 21, 27),
    Sketcher.Constraint("Equal", 25, 29),
    Sketcher.Constraint("Equal", 29, 31),
    Sketcher.Constraint("Equal", 27, 33),
    Sketcher.Constraint("Equal", 31, 35),
    Sketcher.Constraint("Symmetric", 17, 3, 19, 3, -2),
    Sketcher.Constraint("Symmetric", 15, 3, 21, 3, -2),
    Sketcher.Constraint("Symmetric", 11, 3, 25, 3, -2),
    Sketcher.Constraint("Symmetric", 9, 3, 27, 3, -2),
    Sketcher.Constraint("Symmetric", 5, 3, 31, 3, -2),
    Sketcher.Constraint("Symmetric", 3, 3, 33, 3, -2),
    Sketcher.Constraint("Perpendicular", 2, 4),
    Sketcher.Constraint("Perpendicular", 4, 8),
    Sketcher.Constraint("Perpendicular", 8, 10),
    Sketcher.Constraint("Perpendicular", 10, 14),
    Sketcher.Constraint("Perpendicular", 14, 16),
    Sketcher.Constraint("Perpendicular", 16, 20),
    Sketcher.Constraint("Perpendicular", 20, 22),
    Sketcher.Constraint("Perpendicular", 26, 28),
    Sketcher.Constraint("Perpendicular", 32, 34),
    Sketcher.Constraint("Horizontal", 5, 3, 7, 3),
    Sketcher.Constraint("Horizontal", 3, 3, 9, 3),
    Sketcher.Constraint("Horizontal", 11, 3, 13, 3),
    Sketcher.Constraint("Horizontal", 9, 3, 15, 3),
    Sketcher.Constraint("Radius", 1, Q("1 mm")),
    Sketcher.Constraint("Radius", 3, Q("2 mm")),
    Sketcher.Constraint("DistanceY", 1, 3, -1, 1, Q("9 mm")),
    Sketcher.Constraint("DistanceX", 3, 3, -1, 1, Q("125 mm")),
    Sketcher.Constraint("DistanceY", -1, 1, 3, 3, Q("8 mm")),
    Sketcher.Constraint("DistanceX", 9, 3, -1, 1, Q("75 mm")),
    Sketcher.Constraint("DistanceX", 15, 3, -1, 1, Q("25 mm")),
])
pocket2 = doc.addObject("PartDesign::Pocket", "Pocket001")
body.addObject(pocket2)
pocket2.Profile = sketch4
pocket2.Type = "ThroughAll"

# Sketch on XY plane
sketch5 = doc.addObject("Sketcher::SketchObject", "Sketch004")
body.addObject(sketch5)
sketch5.AttachmentSupport = (doc.XY_Plane, [""])
sketch5.MapMode = "FlatFace"
sketch5.AttachmentOffset = App.Placement(App.Vector(0, 0, 1.6), App.Rotation())
sketch5.addGeometry([
    Part.LineSegment(App.Vector(-180, 15, 0), App.Vector(-180, -15, 0)),  # 0
    Part.LineSegment(App.Vector(-180, -15, 0), App.Vector(-165, -15, 0)),  # 1
    Part.LineSegment(App.Vector(-165, -15, 0), App.Vector(-165, 15, 0)),  # 2
    Part.LineSegment(App.Vector(-165, 15, 0), App.Vector(-180, 15, 0)),  # 3
    Part.LineSegment(App.Vector(165, 15, 0), App.Vector(165, -15, 0)),  # 4
    Part.LineSegment(App.Vector(165, -15, 0), App.Vector(180, -15, 0)),  # 5
    Part.LineSegment(App.Vector(180, -15, 0), App.Vector(180, 15, 0)),  # 6
    Part.LineSegment(App.Vector(180, 15, 0), App.Vector(165, 15, 0)),  # 7
], False)
sketch5.addConstraint([
    Sketcher.Constraint("Coincident", 0, 2, 1, 1),
    Sketcher.Constraint("Coincident", 1, 2, 2, 1),
    Sketcher.Constraint("Coincident", 2, 2, 3, 1),
    Sketcher.Constraint("Coincident", 3, 2, 0, 1),
    Sketcher.Constraint("Coincident", 4, 2, 5, 1),
    Sketcher.Constraint("Coincident", 5, 2, 6, 1),
    Sketcher.Constraint("Coincident", 6, 2, 7, 1),
    Sketcher.Constraint("Coincident", 7, 2, 4, 1),
    Sketcher.Constraint("Vertical", 0),
    Sketcher.Constraint("Horizontal", 1),
    Sketcher.Constraint("Vertical", 2),
    Sketcher.Constraint("Horizontal", 3),
    Sketcher.Constraint("Vertical", 4),
    Sketcher.Constraint("Horizontal", 5),
    Sketcher.Constraint("Vertical", 6),
    Sketcher.Constraint("Horizontal", 7),
    Sketcher.Constraint("Symmetric", 2, 2, 4, 2, -1, 1),
    Sketcher.Constraint("Symmetric", 0, 2, 6, 2, -1, 1),
    Sketcher.Constraint("Horizontal", 1, 2, 4, 2),
    Sketcher.Constraint("DistanceX", 1, 1, 1, 2, Q("15 mm")),
    Sketcher.Constraint("DistanceY", 0, 2, 0, 1, Q("30 mm")),
    Sketcher.Constraint("DistanceX", 0, 2, -1, 1, Q("180 mm")),
])
pocket3 = doc.addObject("PartDesign::Pocket", "Pocket002")
body.addObject(pocket3)
pocket3.Profile = sketch5
pocket3.Type = "ThroughAll"

# Sketch on XY plane
sketch6 = doc.addObject("Sketcher::SketchObject", "Sketch005")
body.addObject(sketch6)
sketch6.AttachmentSupport = (doc.XY_Plane, [""])
sketch6.MapMode = "FlatFace"
sketch6.AttachmentOffset = App.Placement(App.Vector(0, 0, 1.6), App.Rotation())
sketch6.addGeometry([
    Part.LineSegment(App.Vector(-165, 16.6, 0), App.Vector(-165, -16.6, 0)),  # 0
    Part.LineSegment(App.Vector(-165, -16.6, 0), App.Vector(-161, -16.6, 0)),  # 1
    Part.LineSegment(App.Vector(-161, -16.6, 0), App.Vector(-161, 16.6, 0)),  # 2
    Part.LineSegment(App.Vector(-161, 16.6, 0), App.Vector(-165, 16.6, 0)),  # 3
    Part.LineSegment(App.Vector(161, 16.6, 0), App.Vector(161, -16.6, 0)),  # 4
    Part.LineSegment(App.Vector(161, -16.6, 0), App.Vector(165, -16.6, 0)),  # 5
    Part.LineSegment(App.Vector(165, -16.6, 0), App.Vector(165, 16.6, 0)),  # 6
    Part.LineSegment(App.Vector(165, 16.6, 0), App.Vector(161, 16.6, 0)),  # 7
], False)
sketch6.addConstraint([
    Sketcher.Constraint("Coincident", 0, 2, 1, 1),
    Sketcher.Constraint("Coincident", 1, 2, 2, 1),
    Sketcher.Constraint("Coincident", 2, 2, 3, 1),
    Sketcher.Constraint("Coincident", 3, 2, 0, 1),
    Sketcher.Constraint("Coincident", 4, 2, 5, 1),
    Sketcher.Constraint("Coincident", 5, 2, 6, 1),
    Sketcher.Constraint("Coincident", 6, 2, 7, 1),
    Sketcher.Constraint("Coincident", 7, 2, 4, 1),
    Sketcher.Constraint("Vertical", 0),
    Sketcher.Constraint("Horizontal", 1),
    Sketcher.Constraint("Vertical", 2),
    Sketcher.Constraint("Horizontal", 3),
    Sketcher.Constraint("Vertical", 4),
    Sketcher.Constraint("Horizontal", 5),
    Sketcher.Constraint("Vertical", 6),
    Sketcher.Constraint("Horizontal", 7),
    Sketcher.Constraint("Symmetric", 2, 2, 4, 2, -1, 1),
    Sketcher.Constraint("Symmetric", 0, 2, 6, 2, -1, 1),
    Sketcher.Constraint("Horizontal", 1, 2, 4, 2),
    Sketcher.Constraint("DistanceX", 1, 1, 1, 2, Q("4 mm")),
    Sketcher.Constraint("DistanceY", 0, 2, 0, 1, Q("33.2 mm")),
    Sketcher.Constraint("DistanceX", 0, 2, -1, 1, Q("165 mm")),
])
pad3 = doc.addObject("PartDesign::Pad", "Pad002")
body.addObject(pad3)
pad3.Profile = sketch6
pad3.Length = 1.6
pad3.Reversed = True
doc.recompute()

fillet = doc.addObject("PartDesign::Fillet", "Fillet")
body.addObject(fillet)
fillet.Base = (pad3, edges_at(pad3, [
    (-161, 10, 0.8),
    (-161, 1.586, 0.8),
    (161, 1.586, 0.8),
    (161, 10, 0.8),
]))
fillet.Radius = 4

# Sketch on XY plane
sketch7 = doc.addObject("Sketcher::SketchObject", "Sketch006")
body.addObject(sketch7)
sketch7.AttachmentSupport = (doc.XY_Plane, [""])
sketch7.MapMode = "FlatFace"
sketch7.AttachmentOffset = App.Placement(App.Vector(0, 0, 1.6), App.Rotation())
sketch7.addGeometry([
    Part.LineSegment(App.Vector(-26.414214, 9.414214, 0), App.Vector(-29.707107, 6.12132, 0)),  # 0
    Part.ArcOfCircle(Part.Circle(App.Vector(-27.585786, 4, 0), App.Vector(0, 0, 1), 3), math.radians(90), math.radians(135)),  # 1
    Part.LineSegment(App.Vector(-27.585786, 7, 0), App.Vector(-22.414214, 7, 0)),  # 2
    Part.ArcOfCircle(Part.Circle(App.Vector(-22.414214, 4, 0), App.Vector(0, 0, 1), 3), math.radians(45), math.radians(90)),  # 3
    Part.LineSegment(App.Vector(-20.292893, 6.12132, 0), App.Vector(-23.585786, 9.414214, 0)),  # 4
    Part.ArcOfCircle(Part.Circle(App.Vector(-25, 8, 0), App.Vector(0, 0, 1), 2), math.radians(45), math.radians(135)),  # 5
    Part.LineSegment(App.Vector(23.585786, 9.414214, 0), App.Vector(20.292893, 6.12132, 0)),  # 6
    Part.ArcOfCircle(Part.Circle(App.Vector(22.414214, 4, 0), App.Vector(0, 0, 1), 3), math.radians(90), math.radians(135)),  # 7
    Part.LineSegment(App.Vector(22.414214, 7, 0), App.Vector(27.585786, 7, 0)),  # 8
    Part.ArcOfCircle(Part.Circle(App.Vector(27.585786, 4, 0), App.Vector(0, 0, 1), 3), math.radians(45), math.radians(90)),  # 9
    Part.LineSegment(App.Vector(29.707107, 6.12132, 0), App.Vector(26.414214, 9.414214, 0)),  # 10
    Part.ArcOfCircle(Part.Circle(App.Vector(25, 8, 0), App.Vector(0, 0, 1), 2), math.radians(45), math.radians(135)),  # 11
], False)
sketch7.addConstraint([
    Sketcher.Constraint("Tangent", 0, 2, 1, 2),
    Sketcher.Constraint("Tangent", 1, 1, 2, 1),
    Sketcher.Constraint("Tangent", 2, 2, 3, 2),
    Sketcher.Constraint("Tangent", 3, 1, 4, 1),
    Sketcher.Constraint("Tangent", 4, 2, 5, 1),
    Sketcher.Constraint("Tangent", 5, 2, 0, 1),
    Sketcher.Constraint("Tangent", 6, 2, 7, 2),
    Sketcher.Constraint("Tangent", 7, 1, 8, 1),
    Sketcher.Constraint("Tangent", 8, 2, 9, 2),
    Sketcher.Constraint("Tangent", 9, 1, 10, 1),
    Sketcher.Constraint("Tangent", 10, 2, 11, 1),
    Sketcher.Constraint("Tangent", 11, 2, 6, 1),
    Sketcher.Constraint("Horizontal", 2),
    Sketcher.Constraint("Horizontal", 8),
    Sketcher.Constraint("Equal", 1, 3),
    Sketcher.Constraint("Equal", 3, 7),
    Sketcher.Constraint("Equal", 7, 9),
    Sketcher.Constraint("Equal", 5, 11),
    Sketcher.Constraint("Symmetric", 3, 3, 7, 3, -2),
    Sketcher.Constraint("Symmetric", 5, 3, 11, 3, -2),
    Sketcher.Constraint("Perpendicular", 0, 4),
    Sketcher.Constraint("Perpendicular", 4, 6),
    Sketcher.Constraint("Perpendicular", 6, 10),
    Sketcher.Constraint("Radius", 1, Q("3 mm")),
    Sketcher.Constraint("Radius", 5, Q("2 mm")),
    Sketcher.Constraint("DistanceY", -1, 1, 1, 3, Q("4 mm")),
    Sketcher.Constraint("DistanceX", 5, 3, -1, 1, Q("25 mm")),
    Sketcher.Constraint("DistanceY", -1, 1, 5, 3, Q("8 mm")),
])
pad4 = doc.addObject("PartDesign::Pad", "Pad003")
body.addObject(pad4)
pad4.Profile = sketch7
pad4.Length = 1.6
pad4.Reversed = True

# Sketch on XY plane
sketch8 = doc.addObject("Sketcher::SketchObject", "Sketch007")
body.addObject(sketch8)
sketch8.AttachmentSupport = (doc.XY_Plane, [""])
sketch8.MapMode = "FlatFace"
sketch8.AttachmentOffset = App.Placement(App.Vector(0, 0, 1.6), App.Rotation())
sketch8.addGeometry([
    Part.Circle(App.Vector(-25, 10, 0), App.Vector(0, 0, 1), 1.6),
    Part.Circle(App.Vector(25, 10, 0), App.Vector(0, 0, 1), 1.6),
    Part.Circle(App.Vector(0, -12, 0), App.Vector(0, 0, 1), 1.6),
], False)
sketch8.addConstraint([
    Sketcher.Constraint("Equal", 0, 1),
    Sketcher.Constraint("Equal", 1, 2),
    Sketcher.Constraint("Symmetric", 0, 3, 1, 3, -2),
    Sketcher.Constraint("PointOnObject", 2, 3, -2),
    Sketcher.Constraint("Diameter", 0, Q("3.2 mm")),
    Sketcher.Constraint("DistanceX", 0, 3, -1, 1, Q("25 mm")),
    Sketcher.Constraint("DistanceY", -1, 1, 0, 3, Q("10 mm")),
    Sketcher.Constraint("DistanceY", 2, 3, -1, 1, Q("12 mm")),
])
pocket4 = doc.addObject("PartDesign::Pocket", "Pocket003")
body.addObject(pocket4)
pocket4.Profile = sketch8
pocket4.Type = "ThroughAll"

doc.recompute()
